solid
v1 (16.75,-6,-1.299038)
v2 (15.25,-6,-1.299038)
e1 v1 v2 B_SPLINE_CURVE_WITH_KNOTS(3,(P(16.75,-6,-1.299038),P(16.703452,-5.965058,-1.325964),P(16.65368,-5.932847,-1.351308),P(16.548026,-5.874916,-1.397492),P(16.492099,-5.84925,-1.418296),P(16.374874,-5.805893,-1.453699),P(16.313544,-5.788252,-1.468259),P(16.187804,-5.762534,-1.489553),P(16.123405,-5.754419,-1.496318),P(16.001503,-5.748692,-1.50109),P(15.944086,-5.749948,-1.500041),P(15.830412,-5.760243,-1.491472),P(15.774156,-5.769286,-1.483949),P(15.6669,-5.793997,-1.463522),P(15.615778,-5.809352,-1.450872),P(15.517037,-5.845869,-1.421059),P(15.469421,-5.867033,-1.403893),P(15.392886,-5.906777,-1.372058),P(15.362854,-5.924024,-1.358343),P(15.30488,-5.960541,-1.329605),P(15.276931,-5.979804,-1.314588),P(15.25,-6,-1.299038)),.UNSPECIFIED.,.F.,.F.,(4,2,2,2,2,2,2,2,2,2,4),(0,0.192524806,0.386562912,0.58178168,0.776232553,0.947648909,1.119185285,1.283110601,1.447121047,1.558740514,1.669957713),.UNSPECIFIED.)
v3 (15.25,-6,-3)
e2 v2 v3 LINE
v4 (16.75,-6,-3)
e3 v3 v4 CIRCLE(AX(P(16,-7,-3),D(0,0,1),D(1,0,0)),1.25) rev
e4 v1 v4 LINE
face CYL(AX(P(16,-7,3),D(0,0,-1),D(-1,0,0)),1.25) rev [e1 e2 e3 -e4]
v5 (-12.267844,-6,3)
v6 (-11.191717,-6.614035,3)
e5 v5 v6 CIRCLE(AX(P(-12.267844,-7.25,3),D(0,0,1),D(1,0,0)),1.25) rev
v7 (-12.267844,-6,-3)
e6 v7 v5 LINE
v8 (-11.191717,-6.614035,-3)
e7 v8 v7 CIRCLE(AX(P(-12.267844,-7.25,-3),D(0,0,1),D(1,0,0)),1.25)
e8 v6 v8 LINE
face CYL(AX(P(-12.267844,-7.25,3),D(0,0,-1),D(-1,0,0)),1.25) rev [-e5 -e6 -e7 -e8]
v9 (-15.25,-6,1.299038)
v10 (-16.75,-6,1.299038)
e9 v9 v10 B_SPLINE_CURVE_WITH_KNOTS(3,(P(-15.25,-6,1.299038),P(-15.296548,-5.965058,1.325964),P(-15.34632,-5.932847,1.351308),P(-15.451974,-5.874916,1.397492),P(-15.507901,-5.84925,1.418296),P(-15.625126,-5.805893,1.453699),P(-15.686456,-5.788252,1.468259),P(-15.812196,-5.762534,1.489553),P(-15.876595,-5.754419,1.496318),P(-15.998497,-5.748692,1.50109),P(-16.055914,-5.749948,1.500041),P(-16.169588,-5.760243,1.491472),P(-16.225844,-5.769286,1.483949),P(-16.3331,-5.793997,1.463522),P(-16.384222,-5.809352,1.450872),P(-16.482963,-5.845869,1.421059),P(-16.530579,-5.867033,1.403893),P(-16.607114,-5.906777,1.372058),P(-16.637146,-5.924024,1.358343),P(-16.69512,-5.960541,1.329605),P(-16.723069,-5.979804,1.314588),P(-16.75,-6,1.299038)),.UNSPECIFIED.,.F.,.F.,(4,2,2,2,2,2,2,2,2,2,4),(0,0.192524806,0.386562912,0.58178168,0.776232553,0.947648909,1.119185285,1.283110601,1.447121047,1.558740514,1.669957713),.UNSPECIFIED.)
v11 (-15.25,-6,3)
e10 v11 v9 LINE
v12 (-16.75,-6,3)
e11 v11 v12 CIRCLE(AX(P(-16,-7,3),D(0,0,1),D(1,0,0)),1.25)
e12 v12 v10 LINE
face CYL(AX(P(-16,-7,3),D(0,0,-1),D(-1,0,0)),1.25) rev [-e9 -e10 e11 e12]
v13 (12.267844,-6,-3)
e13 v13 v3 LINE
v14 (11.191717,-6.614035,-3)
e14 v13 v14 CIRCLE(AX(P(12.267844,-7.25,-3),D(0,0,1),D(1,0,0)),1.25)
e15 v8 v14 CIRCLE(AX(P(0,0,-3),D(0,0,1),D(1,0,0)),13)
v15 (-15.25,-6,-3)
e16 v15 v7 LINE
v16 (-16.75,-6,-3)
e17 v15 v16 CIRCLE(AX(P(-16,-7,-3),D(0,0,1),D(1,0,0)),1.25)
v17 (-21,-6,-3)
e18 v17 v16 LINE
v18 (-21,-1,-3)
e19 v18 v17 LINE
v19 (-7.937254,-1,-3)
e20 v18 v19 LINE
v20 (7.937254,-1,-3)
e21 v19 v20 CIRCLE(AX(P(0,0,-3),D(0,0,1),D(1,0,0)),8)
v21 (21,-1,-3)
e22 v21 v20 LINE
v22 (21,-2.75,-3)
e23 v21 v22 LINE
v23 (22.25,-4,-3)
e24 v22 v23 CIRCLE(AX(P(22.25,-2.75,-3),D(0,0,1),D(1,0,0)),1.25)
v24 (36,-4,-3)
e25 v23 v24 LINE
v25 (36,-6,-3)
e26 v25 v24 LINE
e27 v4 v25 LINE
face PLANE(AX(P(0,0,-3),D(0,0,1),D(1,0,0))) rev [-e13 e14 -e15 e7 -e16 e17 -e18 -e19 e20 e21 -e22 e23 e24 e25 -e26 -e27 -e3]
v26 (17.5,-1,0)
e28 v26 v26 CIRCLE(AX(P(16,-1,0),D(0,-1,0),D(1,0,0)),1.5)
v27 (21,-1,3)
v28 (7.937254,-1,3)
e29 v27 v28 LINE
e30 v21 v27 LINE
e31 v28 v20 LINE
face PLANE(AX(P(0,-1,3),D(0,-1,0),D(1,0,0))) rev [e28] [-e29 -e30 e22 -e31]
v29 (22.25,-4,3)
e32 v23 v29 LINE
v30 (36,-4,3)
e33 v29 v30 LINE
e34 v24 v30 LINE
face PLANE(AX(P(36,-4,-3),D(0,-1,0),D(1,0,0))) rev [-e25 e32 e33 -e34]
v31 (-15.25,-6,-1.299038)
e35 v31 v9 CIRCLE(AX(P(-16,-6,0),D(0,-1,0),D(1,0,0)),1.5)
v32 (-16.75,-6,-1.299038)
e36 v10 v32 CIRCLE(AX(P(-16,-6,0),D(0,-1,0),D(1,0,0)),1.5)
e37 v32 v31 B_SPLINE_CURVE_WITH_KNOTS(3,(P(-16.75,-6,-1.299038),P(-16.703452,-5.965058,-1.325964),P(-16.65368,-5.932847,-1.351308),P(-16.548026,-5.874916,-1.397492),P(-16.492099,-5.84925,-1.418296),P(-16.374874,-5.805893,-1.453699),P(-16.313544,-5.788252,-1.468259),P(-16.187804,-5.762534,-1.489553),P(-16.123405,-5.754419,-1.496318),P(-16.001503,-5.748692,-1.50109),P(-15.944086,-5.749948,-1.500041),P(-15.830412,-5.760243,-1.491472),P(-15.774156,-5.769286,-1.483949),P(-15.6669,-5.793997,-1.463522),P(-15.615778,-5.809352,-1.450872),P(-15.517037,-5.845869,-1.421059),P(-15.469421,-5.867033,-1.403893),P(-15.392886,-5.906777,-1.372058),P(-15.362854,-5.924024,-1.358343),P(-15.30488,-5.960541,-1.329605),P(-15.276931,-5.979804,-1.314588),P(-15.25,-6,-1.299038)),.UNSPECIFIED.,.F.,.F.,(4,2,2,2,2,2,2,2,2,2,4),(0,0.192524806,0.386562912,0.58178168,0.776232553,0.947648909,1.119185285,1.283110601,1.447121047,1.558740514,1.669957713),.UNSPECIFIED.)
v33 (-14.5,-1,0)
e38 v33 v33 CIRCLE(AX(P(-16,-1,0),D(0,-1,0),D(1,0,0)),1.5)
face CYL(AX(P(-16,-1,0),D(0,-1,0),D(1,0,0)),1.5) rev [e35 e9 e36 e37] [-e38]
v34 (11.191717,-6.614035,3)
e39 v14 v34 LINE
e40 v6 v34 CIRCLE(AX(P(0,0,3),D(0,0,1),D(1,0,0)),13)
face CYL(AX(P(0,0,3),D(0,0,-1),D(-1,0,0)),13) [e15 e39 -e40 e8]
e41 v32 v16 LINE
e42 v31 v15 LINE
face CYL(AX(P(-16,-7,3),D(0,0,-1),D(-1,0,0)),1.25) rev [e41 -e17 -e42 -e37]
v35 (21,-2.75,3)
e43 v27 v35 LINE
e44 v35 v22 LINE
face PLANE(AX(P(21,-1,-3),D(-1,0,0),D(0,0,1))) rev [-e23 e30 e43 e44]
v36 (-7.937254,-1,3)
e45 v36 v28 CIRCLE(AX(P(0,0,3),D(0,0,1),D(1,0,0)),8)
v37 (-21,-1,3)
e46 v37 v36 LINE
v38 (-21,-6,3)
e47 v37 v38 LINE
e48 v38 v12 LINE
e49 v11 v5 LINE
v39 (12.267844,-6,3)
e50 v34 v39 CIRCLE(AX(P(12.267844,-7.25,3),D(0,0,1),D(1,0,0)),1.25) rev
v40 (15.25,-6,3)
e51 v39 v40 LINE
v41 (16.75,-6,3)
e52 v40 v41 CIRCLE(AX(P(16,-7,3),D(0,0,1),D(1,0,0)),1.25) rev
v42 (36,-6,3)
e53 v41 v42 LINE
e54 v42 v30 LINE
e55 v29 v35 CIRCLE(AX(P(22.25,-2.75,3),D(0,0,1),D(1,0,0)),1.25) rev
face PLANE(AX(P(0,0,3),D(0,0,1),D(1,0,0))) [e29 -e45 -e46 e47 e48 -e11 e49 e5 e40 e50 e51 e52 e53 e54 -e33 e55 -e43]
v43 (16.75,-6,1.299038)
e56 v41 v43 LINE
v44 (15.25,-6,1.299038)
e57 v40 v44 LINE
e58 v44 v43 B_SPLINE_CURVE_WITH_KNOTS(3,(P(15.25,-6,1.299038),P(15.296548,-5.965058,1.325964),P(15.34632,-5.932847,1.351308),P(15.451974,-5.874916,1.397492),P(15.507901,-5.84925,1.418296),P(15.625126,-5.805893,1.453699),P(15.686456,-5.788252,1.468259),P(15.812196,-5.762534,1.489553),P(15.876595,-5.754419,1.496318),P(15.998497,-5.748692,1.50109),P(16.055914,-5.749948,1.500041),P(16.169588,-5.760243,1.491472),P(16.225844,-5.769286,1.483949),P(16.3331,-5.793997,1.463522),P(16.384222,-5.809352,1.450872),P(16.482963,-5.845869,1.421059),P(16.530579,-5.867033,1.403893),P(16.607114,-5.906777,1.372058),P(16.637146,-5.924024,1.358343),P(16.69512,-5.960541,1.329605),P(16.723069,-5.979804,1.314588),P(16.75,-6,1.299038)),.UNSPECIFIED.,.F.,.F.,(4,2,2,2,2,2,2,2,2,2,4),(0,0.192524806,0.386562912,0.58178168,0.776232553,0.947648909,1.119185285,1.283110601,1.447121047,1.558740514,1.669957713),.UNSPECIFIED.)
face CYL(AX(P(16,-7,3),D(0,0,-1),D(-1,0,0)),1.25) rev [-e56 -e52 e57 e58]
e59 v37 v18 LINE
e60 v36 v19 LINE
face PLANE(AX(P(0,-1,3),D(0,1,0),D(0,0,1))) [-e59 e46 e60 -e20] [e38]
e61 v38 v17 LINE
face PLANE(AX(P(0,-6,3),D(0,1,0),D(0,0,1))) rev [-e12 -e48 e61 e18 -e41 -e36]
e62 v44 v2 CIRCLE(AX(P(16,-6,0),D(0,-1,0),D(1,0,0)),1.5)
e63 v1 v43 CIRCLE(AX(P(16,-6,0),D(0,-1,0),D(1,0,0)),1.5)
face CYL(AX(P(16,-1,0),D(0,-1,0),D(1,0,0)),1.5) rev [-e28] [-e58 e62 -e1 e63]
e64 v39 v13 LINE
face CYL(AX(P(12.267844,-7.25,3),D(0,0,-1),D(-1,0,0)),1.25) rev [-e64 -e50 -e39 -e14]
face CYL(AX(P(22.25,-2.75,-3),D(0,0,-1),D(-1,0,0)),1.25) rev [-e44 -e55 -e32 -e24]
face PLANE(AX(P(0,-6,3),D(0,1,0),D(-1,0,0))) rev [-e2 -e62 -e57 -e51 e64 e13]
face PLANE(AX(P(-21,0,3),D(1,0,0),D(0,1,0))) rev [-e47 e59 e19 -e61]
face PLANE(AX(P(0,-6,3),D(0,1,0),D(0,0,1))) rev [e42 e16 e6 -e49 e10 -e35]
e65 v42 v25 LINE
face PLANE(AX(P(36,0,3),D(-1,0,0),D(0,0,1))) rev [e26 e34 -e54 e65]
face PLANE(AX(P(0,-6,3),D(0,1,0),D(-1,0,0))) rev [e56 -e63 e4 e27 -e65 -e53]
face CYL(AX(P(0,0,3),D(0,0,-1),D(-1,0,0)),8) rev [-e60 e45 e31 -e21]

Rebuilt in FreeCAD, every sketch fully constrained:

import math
import FreeCAD as App
import Part
import Sketcher
from FreeCAD import Vector
Q = App.Units.Quantity


def edges_at(feature, points):
    """Names of the edges that pass closest to the given points."""
    edges = feature.Shape.Edges
    near = lambda p: min(range(len(edges)), key=lambda i: edges[i].distToShape(Part.Vertex(*p))[0])
    return sorted({f"Edge{near(p) + 1}" for p in points})


def add_polygon(sketch, points):
    """Adds a closed chain of lines whose ends are joined by coincident constraints."""
    first, n = sketch.GeometryCount, len(points)
    for a, b in zip(points, points[1:] + points[:1]):
        sketch.addGeometry(Part.LineSegment(App.Vector(*a, 0), App.Vector(*b, 0)), False)
    for i in range(n):
        sketch.addConstraint(Sketcher.Constraint("Coincident", first + i, 2, first + (i + 1) % n, 1))

doc = App.newDocument("Part")
body = doc.addObject("PartDesign::Body", "Body")

# Sketch on XY plane
sketch1 = body.newObject("Sketcher::SketchObject", "Sketch")
sketch1.AttachmentSupport = (doc.getObject("XY_Plane"), [""])
sketch1.MapMode = "FlatFace"
sketch1.addGeometry([
    Part.LineSegment(Vector(-15.2, -6, 0), Vector(-11.5, -6, 0)),  # 0
    Part.ArcOfCircle(Part.Circle(Vector(0, 0, 0), Vector(0, 0, 1), 13), math.radians(-153), math.radians(-27)),  # 1
    Part.LineSegment(Vector(11.5, -6, 0), Vector(15.2, -6, 0)),  # 2
    Part.ArcOfCircle(Part.Circle(Vector(16, -7, 0), Vector(0, 0, 1), 1.2), math.radians(53), math.radians(127)),  # 3
    Part.LineSegment(Vector(16.8, -6, 0), Vector(36, -6, 0)),  # 4
    Part.LineSegment(Vector(36, -6, 0), Vector(36, -1, 0)),  # 5
    Part.LineSegment(Vector(36, -1, 0), Vector(7.9, -1, 0)),  # 6
    Part.ArcOfCircle(Part.Circle(Vector(0, 0, 0), Vector(0, 0, 1), 8), math.radians(-173), math.radians(-7)),  # 7
    Part.LineSegment(Vector(-7.9, -1, 0), Vector(-21, -1, 0)),  # 8
    Part.LineSegment(Vector(-21, -1, 0), Vector(-21, -6, 0)),  # 9
    Part.LineSegment(Vector(-21, -6, 0), Vector(-16.8, -6, 0)),  # 10
    Part.ArcOfCircle(Part.Circle(Vector(-16, -7, 0), Vector(0, 0, 1), 1.2), math.radians(53), math.radians(127)),  # 11
], False)
sketch1.addConstraint([
    Sketcher.Constraint("Coincident", 0, 2, 1, 1),
    Sketcher.Constraint("Coincident", 1, 2, 2, 1),
    Sketcher.Constraint("Coincident", 2, 2, 3, 2),
    Sketcher.Constraint("Coincident", 3, 1, 4, 1),
    Sketcher.Constraint("Coincident", 4, 2, 5, 1),
    Sketcher.Constraint("Coincident", 5, 2, 6, 1),
    Sketcher.Constraint("Coincident", 6, 2, 7, 2),
    Sketcher.Constraint("Coincident", 7, 1, 8, 1),
    Sketcher.Constraint("Coincident", 8, 2, 9, 1),
    Sketcher.Constraint("Coincident", 9, 2, 10, 1),
    Sketcher.Constraint("Coincident", 10, 2, 11, 2),
    Sketcher.Constraint("Coincident", 11, 1, 0, 1),
    Sketcher.Constraint("Horizontal", 0),
    Sketcher.Constraint("Horizontal", 2),
    Sketcher.Constraint("Horizontal", 4),
    Sketcher.Constraint("Vertical", 5),
    Sketcher.Constraint("Horizontal", 6),
    Sketcher.Constraint("Horizontal", 8),
    Sketcher.Constraint("Vertical", 9),
    Sketcher.Constraint("Horizontal", 10),
    Sketcher.Constraint("Coincident", 1, 3, -1, 1),
    Sketcher.Constraint("Coincident", 7, 3, -1, 1),
    Sketcher.Constraint("Equal", 3, 11),
    Sketcher.Constraint("Symmetric", 3, 3, 11, 3, -2),
    Sketcher.Constraint("Horizontal", 0, 2, 1, 2),
    Sketcher.Constraint("Horizontal", 2, 2, 3, 1),
    Sketcher.Constraint("Horizontal", 6, 2, 7, 1),
    Sketcher.Constraint("Horizontal", 4, 2, 9, 2),
    Sketcher.Constraint("Radius", 1, Q("13 mm")),
    Sketcher.Constraint("Radius", 7, Q("8 mm")),
    Sketcher.Constraint("DistanceY", 5, 1, 5, 2, Q("5 mm")),
    Sketcher.Constraint("Radius", 3, Q("1.25 mm")),
    Sketcher.Constraint("DistanceX", -1, 1, 3, 3, Q("16 mm")),
    Sketcher.Constraint("DistanceY", 3, 3, -1, 1, Q("7 mm")),
    Sketcher.Constraint("DistanceY", 0, 2, -1, 1, Q("6 mm")),
    Sketcher.Constraint("DistanceX", -1, 1, 4, 2, Q("36 mm")),
    Sketcher.Constraint("DistanceX", 8, 2, -1, 1, Q("21 mm")),
])
pad1 = body.newObject("PartDesign::Pad", "Pad")
pad1.Profile = sketch1
pad1.Length = 6
pad1.Midplane = True

# Sketch on XZ plane
sketch2 = body.newObject("Sketcher::SketchObject", "Sketch001")
sketch2.AttachmentSupport = (doc.getObject("XZ_Plane"), [""])
sketch2.MapMode = "FlatFace"
sketch2.AttachmentOffset = App.Placement(Vector(0, 0, 6), App.Rotation())
sketch2.addGeometry([
    Part.Circle(Vector(-16, 0, 0), Vector(0, 0, 1), 1.5),
    Part.Circle(Vector(16, 0, 0), Vector(0, 0, 1), 1.5),
], False)
sketch2.addConstraint([
    Sketcher.Constraint("Equal", 0, 1),
    Sketcher.Constraint("Symmetric", 0, 3, 1, 3, -1, 1),
    Sketcher.Constraint("PointOnObject", 0, 3, -1),
    Sketcher.Constraint("Diameter", 0, Q("3 mm")),
    Sketcher.Constraint("DistanceX", 0, 3, -1, 1, Q("16 mm")),
])
pocket1 = body.newObject("PartDesign::Pocket", "Pocket")
pocket1.Profile = sketch2
pocket1.Type = "ThroughAll"

# Sketch on XY plane
sketch3 = body.newObject("Sketcher::SketchObject", "Sketch002")
sketch3.AttachmentSupport = (doc.getObject("XY_Plane"), [""])
sketch3.MapMode = "FlatFace"
sketch3.AttachmentOffset = App.Placement(Vector(0, 0, 3), App.Rotation())
add_polygon(sketch3, [(21, -1), (21, -4), (36, -4), (36, -1)])  # lines 0-3
sketch3.addConstraint([
    Sketcher.Constraint("Vertical", 0),
    Sketcher.Constraint("Horizontal", 1),
    Sketcher.Constraint("Vertical", 2),
    Sketcher.Constraint("Horizontal", 3),
    Sketcher.Constraint("DistanceX", 1, 1, 1, 2, Q("15 mm")),
    Sketcher.Constraint("DistanceY", 0, 2, 0, 1, Q("3 mm")),
    Sketcher.Constraint("DistanceX", -1, 1, 0, 2, Q("21 mm")),
    Sketcher.Constraint("DistanceY", 0, 2, -1, 1, Q("4 mm")),
])
pocket2 = body.newObject("PartDesign::Pocket", "Pocket001")
pocket2.Profile = sketch3
pocket2.Type = "ThroughAll"
doc.recompute()

fillet = body.newObject("PartDesign::Fillet", "Fillet")
fillet.Base = (pocket2, edges_at(pocket2, [(11.533, -6, 0), (-11.533, -6, 0), (21, -4, 0)]))
fillet.Radius = 1.25

doc.recompute()
